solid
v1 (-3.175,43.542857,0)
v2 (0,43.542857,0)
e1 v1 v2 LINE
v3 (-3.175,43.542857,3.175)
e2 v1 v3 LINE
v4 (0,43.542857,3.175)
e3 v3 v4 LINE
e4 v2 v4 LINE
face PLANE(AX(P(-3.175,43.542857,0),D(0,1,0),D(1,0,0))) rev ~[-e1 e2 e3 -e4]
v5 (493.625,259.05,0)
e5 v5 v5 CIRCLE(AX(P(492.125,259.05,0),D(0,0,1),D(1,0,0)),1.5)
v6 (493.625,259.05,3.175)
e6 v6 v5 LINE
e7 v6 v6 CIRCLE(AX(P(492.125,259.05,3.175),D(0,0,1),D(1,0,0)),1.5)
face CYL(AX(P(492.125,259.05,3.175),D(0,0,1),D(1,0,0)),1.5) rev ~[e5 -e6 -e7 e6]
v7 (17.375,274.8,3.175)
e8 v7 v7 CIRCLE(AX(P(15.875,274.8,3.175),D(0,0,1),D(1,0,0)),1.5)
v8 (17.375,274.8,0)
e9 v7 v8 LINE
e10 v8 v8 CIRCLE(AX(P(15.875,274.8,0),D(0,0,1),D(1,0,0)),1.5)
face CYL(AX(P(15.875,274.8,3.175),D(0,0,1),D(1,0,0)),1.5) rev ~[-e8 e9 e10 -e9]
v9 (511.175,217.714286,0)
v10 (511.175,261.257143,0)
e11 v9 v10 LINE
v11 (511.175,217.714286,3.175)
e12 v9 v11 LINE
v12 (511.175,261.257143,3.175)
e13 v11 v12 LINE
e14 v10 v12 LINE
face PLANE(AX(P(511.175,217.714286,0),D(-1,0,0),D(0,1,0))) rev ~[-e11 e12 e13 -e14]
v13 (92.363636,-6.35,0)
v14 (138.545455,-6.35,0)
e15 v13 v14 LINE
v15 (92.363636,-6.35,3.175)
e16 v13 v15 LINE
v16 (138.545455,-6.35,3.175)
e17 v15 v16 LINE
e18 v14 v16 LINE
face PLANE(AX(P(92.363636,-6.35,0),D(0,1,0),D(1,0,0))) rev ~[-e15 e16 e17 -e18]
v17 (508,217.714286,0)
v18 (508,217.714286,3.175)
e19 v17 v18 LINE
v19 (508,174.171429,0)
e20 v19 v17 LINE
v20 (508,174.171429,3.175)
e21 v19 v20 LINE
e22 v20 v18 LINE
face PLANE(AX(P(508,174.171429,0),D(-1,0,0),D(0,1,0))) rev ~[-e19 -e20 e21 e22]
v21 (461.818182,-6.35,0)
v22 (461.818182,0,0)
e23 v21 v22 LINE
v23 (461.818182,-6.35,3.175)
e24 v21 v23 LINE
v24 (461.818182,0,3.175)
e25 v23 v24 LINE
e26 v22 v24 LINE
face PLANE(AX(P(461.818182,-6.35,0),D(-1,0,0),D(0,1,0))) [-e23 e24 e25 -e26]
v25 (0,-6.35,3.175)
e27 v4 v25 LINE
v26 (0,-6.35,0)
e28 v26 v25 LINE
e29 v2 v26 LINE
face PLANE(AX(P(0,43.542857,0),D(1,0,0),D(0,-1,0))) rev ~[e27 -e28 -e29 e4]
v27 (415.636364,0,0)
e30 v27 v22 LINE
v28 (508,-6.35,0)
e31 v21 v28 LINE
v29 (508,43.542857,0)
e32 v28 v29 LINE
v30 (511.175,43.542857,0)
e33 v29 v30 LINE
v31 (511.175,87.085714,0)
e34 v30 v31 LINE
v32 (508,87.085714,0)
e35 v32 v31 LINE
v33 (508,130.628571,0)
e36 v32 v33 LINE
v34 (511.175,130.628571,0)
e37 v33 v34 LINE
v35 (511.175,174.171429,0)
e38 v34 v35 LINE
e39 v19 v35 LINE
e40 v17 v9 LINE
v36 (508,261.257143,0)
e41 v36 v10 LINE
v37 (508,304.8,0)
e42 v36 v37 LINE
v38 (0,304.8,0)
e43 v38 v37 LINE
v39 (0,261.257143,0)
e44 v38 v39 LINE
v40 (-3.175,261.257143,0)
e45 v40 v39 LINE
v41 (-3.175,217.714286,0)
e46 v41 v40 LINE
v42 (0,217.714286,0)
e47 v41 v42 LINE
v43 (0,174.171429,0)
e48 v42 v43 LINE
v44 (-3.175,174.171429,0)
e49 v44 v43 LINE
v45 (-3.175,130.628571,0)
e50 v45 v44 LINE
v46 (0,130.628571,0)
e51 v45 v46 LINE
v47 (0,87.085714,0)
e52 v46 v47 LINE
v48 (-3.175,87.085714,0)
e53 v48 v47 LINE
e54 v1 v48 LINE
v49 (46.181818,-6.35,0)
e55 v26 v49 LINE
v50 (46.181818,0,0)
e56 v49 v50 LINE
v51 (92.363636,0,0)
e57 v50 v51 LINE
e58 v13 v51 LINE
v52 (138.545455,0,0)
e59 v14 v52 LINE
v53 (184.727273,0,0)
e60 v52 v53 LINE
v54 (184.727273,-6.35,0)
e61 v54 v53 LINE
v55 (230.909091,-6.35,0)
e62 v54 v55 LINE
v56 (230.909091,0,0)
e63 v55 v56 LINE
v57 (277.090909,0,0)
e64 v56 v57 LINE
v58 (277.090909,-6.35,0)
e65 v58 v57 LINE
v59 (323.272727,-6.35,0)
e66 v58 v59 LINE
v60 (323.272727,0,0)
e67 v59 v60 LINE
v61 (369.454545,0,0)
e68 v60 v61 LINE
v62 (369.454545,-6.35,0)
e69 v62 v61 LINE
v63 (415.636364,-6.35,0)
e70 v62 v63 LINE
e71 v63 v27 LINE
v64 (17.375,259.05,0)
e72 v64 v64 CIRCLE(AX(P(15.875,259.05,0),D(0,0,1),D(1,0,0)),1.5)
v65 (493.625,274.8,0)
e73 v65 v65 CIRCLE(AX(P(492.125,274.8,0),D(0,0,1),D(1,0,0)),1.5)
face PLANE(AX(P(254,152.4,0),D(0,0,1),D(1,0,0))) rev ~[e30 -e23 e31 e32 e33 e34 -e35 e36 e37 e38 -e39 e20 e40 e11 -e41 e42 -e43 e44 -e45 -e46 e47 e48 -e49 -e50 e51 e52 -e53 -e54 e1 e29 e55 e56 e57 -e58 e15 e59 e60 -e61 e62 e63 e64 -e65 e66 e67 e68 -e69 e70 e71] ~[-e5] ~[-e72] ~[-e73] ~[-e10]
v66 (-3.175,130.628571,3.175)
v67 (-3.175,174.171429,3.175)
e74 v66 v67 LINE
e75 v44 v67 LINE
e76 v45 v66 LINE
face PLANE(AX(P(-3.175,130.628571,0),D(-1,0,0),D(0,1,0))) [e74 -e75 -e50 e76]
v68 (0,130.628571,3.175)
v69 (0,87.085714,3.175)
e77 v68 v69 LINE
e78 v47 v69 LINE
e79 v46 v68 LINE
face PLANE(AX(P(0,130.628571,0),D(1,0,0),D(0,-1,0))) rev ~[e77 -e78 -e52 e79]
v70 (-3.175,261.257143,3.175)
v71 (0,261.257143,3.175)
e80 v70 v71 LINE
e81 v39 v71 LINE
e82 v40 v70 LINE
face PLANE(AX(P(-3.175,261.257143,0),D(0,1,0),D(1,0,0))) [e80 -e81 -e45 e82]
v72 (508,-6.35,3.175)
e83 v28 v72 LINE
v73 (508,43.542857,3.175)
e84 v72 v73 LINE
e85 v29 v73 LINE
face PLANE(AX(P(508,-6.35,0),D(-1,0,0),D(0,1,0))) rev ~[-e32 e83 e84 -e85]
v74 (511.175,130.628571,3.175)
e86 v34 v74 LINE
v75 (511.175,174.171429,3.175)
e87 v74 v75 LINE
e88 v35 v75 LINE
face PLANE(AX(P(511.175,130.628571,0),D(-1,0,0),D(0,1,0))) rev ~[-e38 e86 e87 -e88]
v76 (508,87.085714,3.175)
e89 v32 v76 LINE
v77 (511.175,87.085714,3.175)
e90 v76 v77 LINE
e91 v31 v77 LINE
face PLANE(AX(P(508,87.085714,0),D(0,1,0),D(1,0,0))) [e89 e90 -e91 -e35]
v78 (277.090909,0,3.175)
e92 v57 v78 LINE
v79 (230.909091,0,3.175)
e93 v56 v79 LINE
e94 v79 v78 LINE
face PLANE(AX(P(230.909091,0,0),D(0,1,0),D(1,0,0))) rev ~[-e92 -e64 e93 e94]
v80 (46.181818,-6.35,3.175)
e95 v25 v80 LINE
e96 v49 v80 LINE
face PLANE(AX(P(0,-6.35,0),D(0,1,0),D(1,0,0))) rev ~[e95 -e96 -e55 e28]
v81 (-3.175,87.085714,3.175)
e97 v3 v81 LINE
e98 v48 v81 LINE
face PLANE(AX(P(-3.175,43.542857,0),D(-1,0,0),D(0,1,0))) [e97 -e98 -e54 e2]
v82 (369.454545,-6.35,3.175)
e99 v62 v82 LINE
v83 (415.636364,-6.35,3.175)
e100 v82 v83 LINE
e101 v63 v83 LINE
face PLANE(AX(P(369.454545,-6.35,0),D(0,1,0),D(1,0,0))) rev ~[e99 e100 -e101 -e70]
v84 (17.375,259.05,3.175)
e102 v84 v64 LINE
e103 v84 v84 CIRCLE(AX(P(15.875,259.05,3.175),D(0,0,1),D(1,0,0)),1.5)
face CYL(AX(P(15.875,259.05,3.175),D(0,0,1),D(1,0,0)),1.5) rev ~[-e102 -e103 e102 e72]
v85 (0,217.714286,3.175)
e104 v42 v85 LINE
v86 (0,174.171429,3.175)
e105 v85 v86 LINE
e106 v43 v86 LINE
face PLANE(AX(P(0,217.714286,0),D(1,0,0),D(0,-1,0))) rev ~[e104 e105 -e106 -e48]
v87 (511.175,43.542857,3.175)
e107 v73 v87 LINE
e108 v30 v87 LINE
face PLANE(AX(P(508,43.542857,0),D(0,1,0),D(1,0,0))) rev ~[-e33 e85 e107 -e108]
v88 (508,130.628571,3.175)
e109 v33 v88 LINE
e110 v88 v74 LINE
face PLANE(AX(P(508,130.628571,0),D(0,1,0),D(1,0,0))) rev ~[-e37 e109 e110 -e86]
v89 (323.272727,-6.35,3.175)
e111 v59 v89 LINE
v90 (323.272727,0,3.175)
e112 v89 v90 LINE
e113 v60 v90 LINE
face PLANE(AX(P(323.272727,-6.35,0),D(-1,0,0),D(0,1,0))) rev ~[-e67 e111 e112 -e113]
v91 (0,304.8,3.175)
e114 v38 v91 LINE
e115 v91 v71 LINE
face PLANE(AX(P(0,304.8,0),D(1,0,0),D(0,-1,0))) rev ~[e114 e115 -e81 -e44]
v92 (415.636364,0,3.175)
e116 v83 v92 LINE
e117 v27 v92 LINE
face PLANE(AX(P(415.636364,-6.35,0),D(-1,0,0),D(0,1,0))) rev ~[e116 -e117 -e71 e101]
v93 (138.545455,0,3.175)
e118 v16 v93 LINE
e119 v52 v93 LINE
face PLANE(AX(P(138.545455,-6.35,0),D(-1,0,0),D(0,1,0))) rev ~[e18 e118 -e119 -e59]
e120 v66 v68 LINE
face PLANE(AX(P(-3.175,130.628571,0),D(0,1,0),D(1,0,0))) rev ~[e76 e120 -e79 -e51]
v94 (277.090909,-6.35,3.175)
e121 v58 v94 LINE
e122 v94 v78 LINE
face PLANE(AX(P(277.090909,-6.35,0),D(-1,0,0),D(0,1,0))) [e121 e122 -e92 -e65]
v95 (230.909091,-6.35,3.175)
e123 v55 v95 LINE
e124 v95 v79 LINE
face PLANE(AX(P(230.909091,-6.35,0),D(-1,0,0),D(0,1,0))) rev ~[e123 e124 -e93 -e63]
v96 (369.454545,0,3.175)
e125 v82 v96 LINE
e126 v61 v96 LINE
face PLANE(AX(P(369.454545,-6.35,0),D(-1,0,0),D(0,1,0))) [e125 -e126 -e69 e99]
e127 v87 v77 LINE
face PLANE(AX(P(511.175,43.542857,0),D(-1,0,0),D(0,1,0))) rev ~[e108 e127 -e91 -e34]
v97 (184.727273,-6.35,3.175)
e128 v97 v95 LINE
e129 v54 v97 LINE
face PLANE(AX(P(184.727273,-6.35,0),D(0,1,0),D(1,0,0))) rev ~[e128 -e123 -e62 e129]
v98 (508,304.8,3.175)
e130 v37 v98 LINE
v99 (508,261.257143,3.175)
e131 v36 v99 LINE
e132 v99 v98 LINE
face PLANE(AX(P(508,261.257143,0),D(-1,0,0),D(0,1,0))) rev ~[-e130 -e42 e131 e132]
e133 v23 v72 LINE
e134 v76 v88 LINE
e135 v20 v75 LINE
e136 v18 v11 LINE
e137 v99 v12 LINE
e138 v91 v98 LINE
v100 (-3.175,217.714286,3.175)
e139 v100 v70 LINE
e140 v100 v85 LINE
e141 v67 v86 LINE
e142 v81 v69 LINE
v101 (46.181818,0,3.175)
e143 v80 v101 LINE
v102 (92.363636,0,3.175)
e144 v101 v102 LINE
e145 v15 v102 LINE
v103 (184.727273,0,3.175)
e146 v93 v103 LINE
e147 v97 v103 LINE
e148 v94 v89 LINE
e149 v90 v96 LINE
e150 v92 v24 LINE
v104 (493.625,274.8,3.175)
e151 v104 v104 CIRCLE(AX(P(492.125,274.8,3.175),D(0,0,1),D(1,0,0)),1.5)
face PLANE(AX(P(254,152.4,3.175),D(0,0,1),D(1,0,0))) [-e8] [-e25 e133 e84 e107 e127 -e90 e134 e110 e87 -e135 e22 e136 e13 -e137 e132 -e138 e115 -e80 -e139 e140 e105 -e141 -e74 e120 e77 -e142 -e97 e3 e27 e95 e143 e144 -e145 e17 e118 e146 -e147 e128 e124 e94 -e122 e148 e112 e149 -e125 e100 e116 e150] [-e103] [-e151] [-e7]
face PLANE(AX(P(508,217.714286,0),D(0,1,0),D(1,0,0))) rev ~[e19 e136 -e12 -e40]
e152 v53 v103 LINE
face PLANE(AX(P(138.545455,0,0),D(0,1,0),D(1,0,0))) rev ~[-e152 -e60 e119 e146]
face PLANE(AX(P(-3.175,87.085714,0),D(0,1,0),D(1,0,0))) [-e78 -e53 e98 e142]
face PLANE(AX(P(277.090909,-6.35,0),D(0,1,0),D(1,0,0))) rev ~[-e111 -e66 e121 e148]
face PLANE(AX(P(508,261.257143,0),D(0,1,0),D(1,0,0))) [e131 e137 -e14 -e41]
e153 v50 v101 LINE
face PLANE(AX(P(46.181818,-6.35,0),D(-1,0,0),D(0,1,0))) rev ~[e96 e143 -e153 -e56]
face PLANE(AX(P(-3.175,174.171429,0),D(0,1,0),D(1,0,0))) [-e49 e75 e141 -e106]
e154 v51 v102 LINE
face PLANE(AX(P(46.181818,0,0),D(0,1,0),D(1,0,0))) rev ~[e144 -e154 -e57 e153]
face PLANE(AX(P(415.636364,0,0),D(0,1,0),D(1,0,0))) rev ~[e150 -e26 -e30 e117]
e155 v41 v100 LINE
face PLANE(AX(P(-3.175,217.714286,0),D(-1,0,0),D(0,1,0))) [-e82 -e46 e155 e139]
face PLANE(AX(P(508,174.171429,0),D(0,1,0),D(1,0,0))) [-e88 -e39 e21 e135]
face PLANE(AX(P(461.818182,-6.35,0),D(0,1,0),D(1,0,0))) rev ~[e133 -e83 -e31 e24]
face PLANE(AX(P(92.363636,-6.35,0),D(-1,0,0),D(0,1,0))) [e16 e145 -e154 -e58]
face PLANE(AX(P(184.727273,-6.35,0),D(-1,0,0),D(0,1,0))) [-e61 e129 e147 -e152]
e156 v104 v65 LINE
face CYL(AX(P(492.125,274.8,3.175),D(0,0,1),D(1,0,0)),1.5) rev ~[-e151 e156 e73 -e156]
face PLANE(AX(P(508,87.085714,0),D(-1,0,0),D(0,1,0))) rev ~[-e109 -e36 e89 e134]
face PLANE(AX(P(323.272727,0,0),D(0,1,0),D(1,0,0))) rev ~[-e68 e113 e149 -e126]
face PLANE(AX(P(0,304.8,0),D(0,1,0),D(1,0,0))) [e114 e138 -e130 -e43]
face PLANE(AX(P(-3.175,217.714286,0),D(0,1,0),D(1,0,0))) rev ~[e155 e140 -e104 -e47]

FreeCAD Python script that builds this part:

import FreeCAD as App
import Part
import Sketcher
from FreeCAD import Vector
Q = App.Units.Quantity

doc = App.newDocument("Part")
params = doc.addObject("Spreadsheet::Sheet", "Params")
for row, (alias, value) in enumerate([
    ("sketch1_width", "20 in"),
    ("sketch1_height", "0.25 in"),
    ("sketch1_width2", "0.125 in"),
    ("pad1_length", "0.125 in"),
    ("pocket1_length", "0.125 in"),
], start=1):
    params.set(f"A{row}", alias)
    params.set(f"B{row}", "=" + value)
    params.setAlias(f"B{row}", alias)

body = doc.addObject("PartDesign::Body", "Body")

sketch1 = body.newObject("Sketcher::SketchObject", "Sketch")
sketch1.AttachmentSupport = (doc.getObject("XY_Plane"), [""])
sketch1.MapMode = "FlatFace"
sketch1.addGeometry([
    Part.LineSegment(Vector(0, 304.8, 0), Vector(0, 261.257143, 0)),
    Part.LineSegment(Vector(0, 261.257143, 0), Vector(-3.175, 261.257143, 0)),
    Part.LineSegment(Vector(-3.175, 261.257143, 0), Vector(-3.175, 217.714286, 0)),
    Part.LineSegment(Vector(-3.175, 217.714286, 0), Vector(0, 217.714286, 0)),
    Part.LineSegment(Vector(0, 217.714286, 0), Vector(0, 174.171429, 0)),
    Part.LineSegment(Vector(0, 174.171429, 0), Vector(-3.175, 174.171429, 0)),
    Part.LineSegment(Vector(-3.175, 174.171429, 0), Vector(-3.175, 130.628571, 0)),
    Part.LineSegment(Vector(-3.175, 130.628571, 0), Vector(0, 130.628571, 0)),
    Part.LineSegment(Vector(0, 130.628571, 0), Vector(0, 87.085714, 0)),
    Part.LineSegment(Vector(0, 87.085714, 0), Vector(-3.175, 87.085714, 0)),
    Part.LineSegment(Vector(-3.175, 87.085714, 0), Vector(-3.175, 43.542857, 0)),
    Part.LineSegment(Vector(-3.175, 43.542857, 0), Vector(0, 43.542857, 0)),
    Part.LineSegment(Vector(0, 43.542857, 0), Vector(0, -6.35, 0)),
    Part.LineSegment(Vector(0, -6.35, 0), Vector(46.181818, -6.35, 0)),
    Part.LineSegment(Vector(46.181818, -6.35, 0), Vector(46.181818, 0, 0)),
    Part.LineSegment(Vector(46.181818, 0, 0), Vector(92.363636, 0, 0)),
    Part.LineSegment(Vector(92.363636, 0, 0), Vector(92.363636, -6.35, 0)),
    Part.LineSegment(Vector(92.363636, -6.35, 0), Vector(138.545455, -6.35, 0)),
    Part.LineSegment(Vector(138.545455, -6.35, 0), Vector(138.545455, 0, 0)),
    Part.LineSegment(Vector(138.545455, 0, 0), Vector(184.727273, 0, 0)),
    Part.LineSegment(Vector(184.727273, 0, 0), Vector(184.727273, -6.35, 0)),
    Part.LineSegment(Vector(184.727273, -6.35, 0), Vector(230.909091, -6.35, 0)),
    Part.LineSegment(Vector(230.909091, -6.35, 0), Vector(230.909091, 0, 0)),
    Part.LineSegment(Vector(230.909091, 0, 0), Vector(277.090909, 0, 0)),
    Part.LineSegment(Vector(277.090909, 0, 0), Vector(277.090909, -6.35, 0)),
    Part.LineSegment(Vector(277.090909, -6.35, 0), Vector(323.272727, -6.35, 0)),
    Part.LineSegment(Vector(323.272727, -6.35, 0), Vector(323.272727, 0, 0)),
    Part.LineSegment(Vector(323.272727, 0, 0), Vector(369.454545, 0, 0)),
    Part.LineSegment(Vector(369.454545, 0, 0), Vector(369.454545, -6.35, 0)),
    Part.LineSegment(Vector(369.454545, -6.35, 0), Vector(415.636364, -6.35, 0)),
    Part.LineSegment(Vector(415.636364, -6.35, 0), Vector(415.636364, 0, 0)),
    Part.LineSegment(Vector(415.636364, 0, 0), Vector(461.818182, 0, 0)),
    Part.LineSegment(Vector(461.818182, 0, 0), Vector(461.818182, -6.35, 0)),
    Part.LineSegment(Vector(461.818182, -6.35, 0), Vector(508, -6.35, 0)),
    Part.LineSegment(Vector(508, -6.35, 0), Vector(508, 43.542857, 0)),
    Part.LineSegment(Vector(508, 43.542857, 0), Vector(511.175, 43.542857, 0)),
    Part.LineSegment(Vector(511.175, 43.542857, 0), Vector(511.175, 87.085714, 0)),
    Part.LineSegment(Vector(511.175, 87.085714, 0), Vector(508, 87.085714, 0)),
    Part.LineSegment(Vector(508, 87.085714, 0), Vector(508, 130.628571, 0)),
    Part.LineSegment(Vector(508, 130.628571, 0), Vector(511.175, 130.628571, 0)),
    Part.LineSegment(Vector(511.175, 130.628571, 0), Vector(511.175, 174.171429, 0)),
    Part.LineSegment(Vector(511.175, 174.171429, 0), Vector(508, 174.171429, 0)),
    Part.LineSegment(Vector(508, 174.171429, 0), Vector(508, 217.714286, 0)),
    Part.LineSegment(Vector(508, 217.714286, 0), Vector(511.175, 217.714286, 0)),
    Part.LineSegment(Vector(511.175, 217.714286, 0), Vector(511.175, 261.257143, 0)),
    Part.LineSegment(Vector(511.175, 261.257143, 0), Vector(508, 261.257143, 0)),
    Part.LineSegment(Vector(508, 261.257143, 0), Vector(508, 304.8, 0)),
    Part.LineSegment(Vector(508, 304.8, 0), Vector(0, 304.8, 0)),
], False)
sketch1.addConstraint([
    Sketcher.Constraint("Coincident", 0, 2, 1, 1),
    Sketcher.Constraint("Coincident", 1, 2, 2, 1),
    Sketcher.Constraint("Coincident", 2, 2, 3, 1),
    Sketcher.Constraint("Coincident", 3, 2, 4, 1),
    Sketcher.Constraint("Coincident", 4, 2, 5, 1),
    Sketcher.Constraint("Coincident", 5, 2, 6, 1),
    Sketcher.Constraint("Coincident", 6, 2, 7, 1),
    Sketcher.Constraint("Coincident", 7, 2, 8, 1),
    Sketcher.Constraint("Coincident", 8, 2, 9, 1),
    Sketcher.Constraint("Coincident", 9, 2, 10, 1),
    Sketcher.Constraint("Coincident", 10, 2, 11, 1),
    Sketcher.Constraint("Coincident", 11, 2, 12, 1),
    Sketcher.Constraint("Coincident", 12, 2, 13, 1),
    Sketcher.Constraint("Coincident", 13, 2, 14, 1),
    Sketcher.Constraint("Coincident", 14, 2, 15, 1),
    Sketcher.Constraint("Coincident", 15, 2, 16, 1),
    Sketcher.Constraint("Coincident", 16, 2, 17, 1),
    Sketcher.Constraint("Coincident", 17, 2, 18, 1),
    Sketcher.Constraint("Coincident", 18, 2, 19, 1),
    Sketcher.Constraint("Coincident", 19, 2, 20, 1),
    Sketcher.Constraint("Coincident", 20, 2, 21, 1),
    Sketcher.Constraint("Coincident", 21, 2, 22, 1),
    Sketcher.Constraint("Coincident", 22, 2, 23, 1),
    Sketcher.Constraint("Coincident", 23, 2, 24, 1),
    Sketcher.Constraint("Coincident", 24, 2, 25, 1),
    Sketcher.Constraint("Coincident", 25, 2, 26, 1),
    Sketcher.Constraint("Coincident", 26, 2, 27, 1),
    Sketcher.Constraint("Coincident", 27, 2, 28, 1),
    Sketcher.Constraint("Coincident", 28, 2, 29, 1),
    Sketcher.Constraint("Coincident", 29, 2, 30, 1),
    Sketcher.Constraint("Coincident", 30, 2, 31, 1),
    Sketcher.Constraint("Coincident", 31, 2, 32, 1),
    Sketcher.Constraint("Coincident", 32, 2, 33, 1),
    Sketcher.Constraint("Coincident", 33, 2, 34, 1),
    Sketcher.Constraint("Coincident", 34, 2, 35, 1),
    Sketcher.Constraint("Coincident", 35, 2, 36, 1),
    Sketcher.Constraint("Coincident", 36, 2, 37, 1),
    Sketcher.Constraint("Coincident", 37, 2, 38, 1),
    Sketcher.Constraint("Coincident", 38, 2, 39, 1),
    Sketcher.Constraint("Coincident", 39, 2, 40, 1),
    Sketcher.Constraint("Coincident", 40, 2, 41, 1),
    Sketcher.Constraint("Coincident", 41, 2, 42, 1),
    Sketcher.Constraint("Coincident", 42, 2, 43, 1),
    Sketcher.Constraint("Coincident", 43, 2, 44, 1),
    Sketcher.Constraint("Coincident", 44, 2, 45, 1),
    Sketcher.Constraint("Coincident", 45, 2, 46, 1),
    Sketcher.Constraint("Coincident", 46, 2, 47, 1),
    Sketcher.Constraint("Coincident", 47, 2, 0, 1),
    Sketcher.Constraint("Vertical", 0),
    Sketcher.Constraint("Horizontal", 1),
    Sketcher.Constraint("Vertical", 2),
    Sketcher.Constraint("Horizontal", 3),
    Sketcher.Constraint("Vertical", 4),
    Sketcher.Constraint("Horizontal", 5),
    Sketcher.Constraint("Vertical", 6),
    Sketcher.Constraint("Horizontal", 7),
    Sketcher.Constraint("Vertical", 8),
    Sketcher.Constraint("Horizontal", 9),
    Sketcher.Constraint("Vertical", 10),
    Sketcher.Constraint("Horizontal", 11),
    Sketcher.Constraint("Vertical", 12),
    Sketcher.Constraint("Horizontal", 13),
    Sketcher.Constraint("Vertical", 14),
    Sketcher.Constraint("Horizontal", 15),
    Sketcher.Constraint("Vertical", 16),
    Sketcher.Constraint("Horizontal", 17),
    Sketcher.Constraint("Vertical", 18),
    Sketcher.Constraint("Horizontal", 19),
    Sketcher.Constraint("Vertical", 20),
    Sketcher.Constraint("Horizontal", 21),
    Sketcher.Constraint("Vertical", 22),
    Sketcher.Constraint("Horizontal", 23),
    Sketcher.Constraint("Vertical", 24),
    Sketcher.Constraint("Horizontal", 25),
    Sketcher.Constraint("Vertical", 26),
    Sketcher.Constraint("Horizontal", 27),
    Sketcher.Constraint("Vertical", 28),
    Sketcher.Constraint("Horizontal", 29),
    Sketcher.Constraint("Vertical", 30),
    Sketcher.Constraint("Horizontal", 31),
    Sketcher.Constraint("Vertical", 32),
    Sketcher.Constraint("Horizontal", 33),
    Sketcher.Constraint("Vertical", 34),
    Sketcher.Constraint("Horizontal", 35),
    Sketcher.Constraint("Vertical", 36),
    Sketcher.Constraint("Horizontal", 37),
    Sketcher.Constraint("Vertical", 38),
    Sketcher.Constraint("Horizontal", 39),
    Sketcher.Constraint("Vertical", 40),
    Sketcher.Constraint("Horizontal", 41),
    Sketcher.Constraint("Vertical", 42),
    Sketcher.Constraint("Horizontal", 43),
    Sketcher.Constraint("Vertical", 44),
    Sketcher.Constraint("Horizontal", 45),
    Sketcher.Constraint("Vertical", 46),
    Sketcher.Constraint("Horizontal", 47),
    Sketcher.Constraint("PointOnObject", 0, 2, -2),
    Sketcher.Constraint("PointOnObject", 3, 2, -2),
    Sketcher.Constraint("PointOnObject", 7, 2, -2),
    Sketcher.Constraint("PointOnObject", 11, 2, -2),
    Sketcher.Constraint("PointOnObject", 14, 2, -1),
    Sketcher.Constraint("PointOnObject", 18, 2, -1),
    Sketcher.Constraint("PointOnObject", 22, 2, -1),
    Sketcher.Constraint("PointOnObject", 26, 2, -1),
    Sketcher.Constraint("PointOnObject", 30, 2, -1),
    Sketcher.Constraint("Horizontal", 13, 2, 16, 2),
    Sketcher.Constraint("Horizontal", 17, 2, 20, 2),
    Sketcher.Constraint("Horizontal", 21, 2, 24, 2),
    Sketcher.Constraint("Horizontal", 25, 2, 28, 2),
    Sketcher.Constraint("Horizontal", 29, 2, 32, 2),
    Sketcher.Constraint("Horizontal", 11, 2, 34, 2),
    Sketcher.Constraint("Horizontal", 9, 2, 36, 2),
    Sketcher.Constraint("Horizontal", 7, 2, 38, 2),
    Sketcher.Constraint("Horizontal", 5, 2, 40, 2),
    Sketcher.Constraint("Horizontal", 3, 2, 42, 2),
    Sketcher.Constraint("Horizontal", 1, 2, 44, 2),
    Sketcher.Constraint("Vertical", 2, 2, 5, 2),
    Sketcher.Constraint("Vertical", 6, 2, 9, 2),
    Sketcher.Constraint("Vertical", 34, 2, 37, 2),
    Sketcher.Constraint("Vertical", 36, 2, 39, 2),
    Sketcher.Constraint("Vertical", 38, 2, 41, 2),
    Sketcher.Constraint("Vertical", 40, 2, 43, 2),
    Sketcher.Constraint("Vertical", 42, 2, 45, 2),
    Sketcher.Constraint("Equal", 13, 15),
    Sketcher.Constraint("Equal", 15, 17),
    Sketcher.Constraint("Equal", 17, 19),
    Sketcher.Constraint("Equal", 19, 21),
    Sketcher.Constraint("Equal", 21, 23),
    Sketcher.Constraint("Equal", 23, 25),
    Sketcher.Constraint("Equal", 25, 27),
    Sketcher.Constraint("Equal", 27, 29),
    Sketcher.Constraint("Equal", 29, 31),
    Sketcher.Constraint("Equal", 31, 33),
    Sketcher.Constraint("Equal", 11, 35),
    Sketcher.Constraint("Equal", 0, 2),
    Sketcher.Constraint("Equal", 2, 4),
    Sketcher.Constraint("Equal", 4, 6),
    Sketcher.Constraint("Equal", 6, 8),
    Sketcher.Constraint("Equal", 8, 10),
    Sketcher.Constraint("DistanceX", 47, 2, 47, 1, Q("20 in")),
    Sketcher.Constraint("DistanceY", -1, 1, 46, 2, Q("12 in")),
    Sketcher.Constraint("DistanceY", 14, 1, 14, 2, Q("0.25 in")),
    Sketcher.Constraint("DistanceX", 1, 2, 1, 1, Q("0.125 in")),
    Sketcher.Constraint("DistanceY", 0, 2, 0, 1, 43.542857),
])
sketch1.setExpression("Constraints[139]", "Params.sketch1_width")
sketch1.setExpression("Constraints[141]", "Params.sketch1_height")
sketch1.setExpression("Constraints[142]", "Params.sketch1_width2")
pad1 = body.newObject("PartDesign::Pad", "Pad")
pad1.Profile = sketch1
pad1.setExpression("Length", "Params.pad1_length")

sketch2 = body.newObject("Sketcher::SketchObject", "Sketch001")
sketch2.AttachmentSupport = (doc.getObject("XY_Plane"), [""])
sketch2.MapMode = "FlatFace"
sketch2.AttachmentOffset = App.Placement(Vector(0, 0, 0.125 * 25.4), App.Rotation())
sketch2.addGeometry([
    Part.Circle(Vector(15.875, 274.8, 0), Vector(0, 0, 1), 1.5),
    Part.Circle(Vector(15.875, 259.05, 0), Vector(0, 0, 1), 1.5),
    Part.Circle(Vector(492.125, 259.05, 0), Vector(0, 0, 1), 1.5),
    Part.Circle(Vector(492.125, 274.8, 0), Vector(0, 0, 1), 1.5),
], False)
sketch2.addConstraint([
    Sketcher.Constraint("Equal", 0, 1),
    Sketcher.Constraint("Equal", 1, 2),
    Sketcher.Constraint("Equal", 2, 3),
    Sketcher.Constraint("Horizontal", 1, 3, 2, 3),
    Sketcher.Constraint("Horizontal", 0, 3, 3, 3),
    Sketcher.Constraint("Vertical", 0, 3, 1, 3),
    Sketcher.Constraint("Vertical", 2, 3, 3, 3),
    Sketcher.Constraint("Diameter", 0, 3.0),
    Sketcher.Constraint("DistanceX", 1, 3, 2, 3, Q("18.75 in")),
    Sketcher.Constraint("DistanceX", -1, 1, 0, 3, Q("0.625 in")),
    Sketcher.Constraint("DistanceY", -1, 1, 0, 3, 274.8),
    Sketcher.Constraint("DistanceY", -1, 1, 1, 3, 259.05),
])
pocket1 = body.newObject("PartDesign::Pocket", "Pocket")
pocket1.Profile = sketch2
pocket1.setExpression("Length", "Params.pocket1_length")

doc.recompute()
